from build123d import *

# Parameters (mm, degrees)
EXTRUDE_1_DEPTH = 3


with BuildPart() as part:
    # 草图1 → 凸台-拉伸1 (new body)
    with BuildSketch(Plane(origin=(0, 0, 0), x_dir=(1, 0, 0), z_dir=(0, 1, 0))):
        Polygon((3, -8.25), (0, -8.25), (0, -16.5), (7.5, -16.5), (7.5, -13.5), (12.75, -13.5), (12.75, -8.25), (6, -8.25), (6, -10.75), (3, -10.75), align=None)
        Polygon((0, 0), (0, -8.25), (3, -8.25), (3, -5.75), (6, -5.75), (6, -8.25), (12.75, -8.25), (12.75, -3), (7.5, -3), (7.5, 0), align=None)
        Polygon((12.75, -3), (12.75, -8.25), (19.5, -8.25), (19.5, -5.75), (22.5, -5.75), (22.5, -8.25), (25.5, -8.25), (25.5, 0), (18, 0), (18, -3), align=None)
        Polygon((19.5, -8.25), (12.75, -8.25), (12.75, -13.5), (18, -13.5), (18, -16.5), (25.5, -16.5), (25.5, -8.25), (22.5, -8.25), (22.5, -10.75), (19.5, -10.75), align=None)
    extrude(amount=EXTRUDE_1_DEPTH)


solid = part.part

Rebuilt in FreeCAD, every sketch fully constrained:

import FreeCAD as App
import Part
import Sketcher

V = App.Vector


def add_polygon(sketch, points):
    """Adds a closed chain of lines whose ends are joined by coincident constraints."""
    first, n = sketch.GeometryCount, len(points)
    for a, b in zip(points, points[1:] + points[:1]):
        sketch.addGeometry(Part.LineSegment(App.Vector(*a, 0), App.Vector(*b, 0)), False)
    for i in range(n):
        sketch.addConstraint(Sketcher.Constraint("Coincident", first + i, 2, first + (i + 1) % n, 1))

doc = App.newDocument("Part")
body = doc.addObject("PartDesign::Body", "Body")

# Sketch on XZ plane
sketch1 = body.newObject("Sketcher::SketchObject", "Sketch")
sketch1.AttachmentSupport = (doc.getObject("XZ_Plane"), [""])
sketch1.MapMode = "FlatFace"
add_polygon(sketch1, [(0, 16.5), (7.5, 16.5), (7.5, 13.5), (18, 13.5), (18, 16.5), (25.5, 16.5), (25.5, 0), (18, 0), (18, 3), (7.5, 3), (7.5, 0), (0, 0)])  # lines 0-11
add_polygon(sketch1, [(19.5, 5.8), (22.5, 5.8), (22.5, 10.8), (19.5, 10.8)])  # lines 12-15
add_polygon(sketch1, [(6, 10.8), (3, 10.8), (3, 5.8), (6, 5.8)])  # lines 16-19
sketch1.addConstraint(Sketcher.Constraint("Horizontal", 0))
sketch1.addConstraint(Sketcher.Constraint("Vertical", 1))
sketch1.addConstraint(Sketcher.Constraint("Horizontal", 2))
sketch1.addConstraint(Sketcher.Constraint("Vertical", 3))
sketch1.addConstraint(Sketcher.Constraint("Horizontal", 4))
sketch1.addConstraint(Sketcher.Constraint("Vertical", 5))
sketch1.addConstraint(Sketcher.Constraint("Horizontal", 6))
sketch1.addConstraint(Sketcher.Constraint("Vertical", 7))
sketch1.addConstraint(Sketcher.Constraint("Horizontal", 8))
sketch1.addConstraint(Sketcher.Constraint("Vertical", 9))
sketch1.addConstraint(Sketcher.Constraint("Horizontal", 10))
sketch1.addConstraint(Sketcher.Constraint("Vertical", 11))
sketch1.addConstraint(Sketcher.Constraint("Horizontal", 12))
sketch1.addConstraint(Sketcher.Constraint("Vertical", 13))
sketch1.addConstraint(Sketcher.Constraint("Horizontal", 14))
sketch1.addConstraint(Sketcher.Constraint("Vertical", 15))
sketch1.addConstraint(Sketcher.Constraint("Horizontal", 16))
sketch1.addConstraint(Sketcher.Constraint("Vertical", 17))
sketch1.addConstraint(Sketcher.Constraint("Horizontal", 18))
sketch1.addConstraint(Sketcher.Constraint("Vertical", 19))
sketch1.addConstraint(Sketcher.Constraint("Coincident", 10, 2, -1, 1))
sketch1.addConstraint(Sketcher.Constraint("PointOnObject", 5, 2, -1))
sketch1.addConstraint(Sketcher.Constraint("Horizontal", 0, 2, 3, 2))
sketch1.addConstraint(Sketcher.Constraint("Horizontal", 14, 2, 16, 2))
sketch1.addConstraint(Sketcher.Constraint("Horizontal", 15, 2, 17, 2))
sketch1.addConstraint(Sketcher.Constraint("Vertical", 3, 2, 6, 2))
sketch1.addConstraint(Sketcher.Constraint("Vertical", 1, 2, 8, 2))
sketch1.addConstraint(Sketcher.Constraint("Equal", 0, 4))
sketch1.addConstraint(Sketcher.Constraint("Equal", 14, 16))
sketch1.addConstraint(Sketcher.Constraint("Equal", 18, 1))
sketch1.addConstraint(Sketcher.Constraint("Equal", 3, 7))
sketch1.addConstraint(Sketcher.Constraint("DistanceX", 12, 1, 12, 2, 3.0))
sketch1.addConstraint(Sketcher.Constraint("DistanceY", 13, 1, 13, 2, 5.0))
sketch1.addConstraint(Sketcher.Constraint("DistanceX", 0, 1, 0, 2, 7.5))
sketch1.addConstraint(Sketcher.Constraint("DistanceX", 2, 1, 2, 2, 10.5))
sketch1.addConstraint(Sketcher.Constraint("DistanceY", 5, 2, 5, 1, 16.5))
sketch1.addConstraint(Sketcher.Constraint("DistanceX", -1, 1, 16, 2, 3.0))
sketch1.addConstraint(Sketcher.Constraint("DistanceX", 12, 2, 5, 2, 3.0))
sketch1.addConstraint(Sketcher.Constraint("DistanceY", -1, 1, 12, 2, 5.75))
pad1 = body.newObject("PartDesign::Pad", "Pad")
pad1.Profile = sketch1
pad1.Length = 3
pad1.Reversed = True

doc.recompute()
